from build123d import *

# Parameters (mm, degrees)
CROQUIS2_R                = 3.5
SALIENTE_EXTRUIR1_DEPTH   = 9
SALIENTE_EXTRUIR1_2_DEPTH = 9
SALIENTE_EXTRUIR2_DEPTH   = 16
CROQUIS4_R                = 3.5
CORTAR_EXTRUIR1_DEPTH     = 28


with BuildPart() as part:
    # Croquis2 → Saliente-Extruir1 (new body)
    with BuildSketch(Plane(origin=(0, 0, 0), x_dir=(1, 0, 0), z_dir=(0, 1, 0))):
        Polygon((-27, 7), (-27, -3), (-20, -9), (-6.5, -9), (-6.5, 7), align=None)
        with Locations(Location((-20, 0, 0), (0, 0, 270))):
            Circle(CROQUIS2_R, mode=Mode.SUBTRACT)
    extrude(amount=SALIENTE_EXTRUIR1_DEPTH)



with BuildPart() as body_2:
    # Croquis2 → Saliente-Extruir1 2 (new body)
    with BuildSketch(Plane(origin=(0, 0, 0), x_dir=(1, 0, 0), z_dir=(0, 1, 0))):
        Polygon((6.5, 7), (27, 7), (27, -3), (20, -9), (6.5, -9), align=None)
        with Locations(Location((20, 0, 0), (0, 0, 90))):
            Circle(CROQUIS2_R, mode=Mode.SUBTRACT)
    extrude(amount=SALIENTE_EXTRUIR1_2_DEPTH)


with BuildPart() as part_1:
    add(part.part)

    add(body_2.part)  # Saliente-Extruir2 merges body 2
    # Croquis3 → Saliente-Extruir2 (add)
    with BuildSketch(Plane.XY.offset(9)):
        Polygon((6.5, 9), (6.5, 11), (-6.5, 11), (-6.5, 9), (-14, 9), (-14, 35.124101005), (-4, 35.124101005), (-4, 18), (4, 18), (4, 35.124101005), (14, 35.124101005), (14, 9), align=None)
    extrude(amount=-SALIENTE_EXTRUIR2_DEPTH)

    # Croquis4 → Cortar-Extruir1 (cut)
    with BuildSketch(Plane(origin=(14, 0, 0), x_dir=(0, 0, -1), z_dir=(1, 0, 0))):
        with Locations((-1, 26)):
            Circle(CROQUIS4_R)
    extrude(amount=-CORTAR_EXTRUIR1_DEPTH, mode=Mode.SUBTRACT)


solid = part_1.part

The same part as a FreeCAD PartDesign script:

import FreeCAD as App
import Part
import Sketcher

V = App.Vector

doc = App.newDocument("Part")
body = doc.addObject("PartDesign::Body", "Body")

sketch1 = doc.addObject("Sketcher::SketchObject", "Sketch")
body.addObject(sketch1)
sketch1.AttachmentSupport = (doc.XZ_Plane, [""])
sketch1.MapMode = "FlatFace"
sketch1.addGeometry(Part.LineSegment(V(-27, -7, 0), V(-27, 3, 0)), False)
sketch1.addGeometry(Part.LineSegment(V(-27, 3, 0), V(-20, 9, 0)), False)
sketch1.addGeometry(Part.LineSegment(V(-20, 9, 0), V(-6.5, 9, 0)), False)
sketch1.addGeometry(Part.LineSegment(V(-6.5, 9, 0), V(-6.5, -7, 0)), False)
sketch1.addGeometry(Part.LineSegment(V(-6.5, -7, 0), V(-27, -7, 0)), False)
sketch1.addGeometry(Part.Circle(V(-20, 0, 0), V(0, 0, 1), 3.5), False)
sketch1.addConstraint(Sketcher.Constraint("Coincident", 0, 2, 1, 1))
sketch1.addConstraint(Sketcher.Constraint("Coincident", 1, 2, 2, 1))
sketch1.addConstraint(Sketcher.Constraint("Coincident", 2, 2, 3, 1))
sketch1.addConstraint(Sketcher.Constraint("Coincident", 3, 2, 4, 1))
sketch1.addConstraint(Sketcher.Constraint("Coincident", 4, 2, 0, 1))
sketch1.addConstraint(Sketcher.Constraint("Vertical", 0))
sketch1.addConstraint(Sketcher.Constraint("Horizontal", 2))
sketch1.addConstraint(Sketcher.Constraint("Vertical", 3))
sketch1.addConstraint(Sketcher.Constraint("Horizontal", 4))
sketch1.addConstraint(Sketcher.Constraint("PointOnObject", 5, 3, -1))
sketch1.addConstraint(Sketcher.Constraint("Vertical", 5, 3, 1, 2))
sketch1.addConstraint(Sketcher.Constraint("Diameter", 5, 7.0))
sketch1.addConstraint(Sketcher.Constraint("DistanceY", 0, 1, 0, 2, 10.0))
sketch1.addConstraint(Sketcher.Constraint("DistanceY", 3, 2, 3, 1, 16.0))
sketch1.addConstraint(Sketcher.Constraint("DistanceX", 2, 1, 2, 2, 13.5))
sketch1.addConstraint(Sketcher.Constraint("DistanceX", 4, 2, 4, 1, 20.5))
sketch1.addConstraint(Sketcher.Constraint("DistanceX", 5, 3, -1, 1, 20.0))
sketch1.addConstraint(Sketcher.Constraint("DistanceY", -1, 1, 0, 2, 3.0))
pad1 = doc.addObject("PartDesign::Pad", "Pad")
body.addObject(pad1)
pad1.Profile = sketch1
pad1.Length = 9
pad1.Reversed = True
body2 = doc.addObject("PartDesign::Body", "Body001")

sketch2 = doc.addObject("Sketcher::SketchObject", "Sketch001")
body2.addObject(sketch2)
sketch2.AttachmentSupport = (doc.getObject("XZ_Plane001"), [""])
sketch2.MapMode = "FlatFace"
sketch2.addGeometry(Part.LineSegment(V(27, -7, 0), V(6.5, -7, 0)), False)
sketch2.addGeometry(Part.LineSegment(V(6.5, -7, 0), V(6.5, 9, 0)), False)
sketch2.addGeometry(Part.LineSegment(V(6.5, 9, 0), V(20, 9, 0)), False)
sketch2.addGeometry(Part.LineSegment(V(20, 9, 0), V(27, 3, 0)), False)
sketch2.addGeometry(Part.LineSegment(V(27, 3, 0), V(27, -7, 0)), False)
sketch2.addGeometry(Part.Circle(V(20, 0, 0), V(0, 0, 1), 3.5), False)
sketch2.addConstraint(Sketcher.Constraint("Coincident", 0, 2, 1, 1))
sketch2.addConstraint(Sketcher.Constraint("Coincident", 1, 2, 2, 1))
sketch2.addConstraint(Sketcher.Constraint("Coincident", 2, 2, 3, 1))
sketch2.addConstraint(Sketcher.Constraint("Coincident", 3, 2, 4, 1))
sketch2.addConstraint(Sketcher.Constraint("Coincident", 4, 2, 0, 1))
sketch2.addConstraint(Sketcher.Constraint("Horizontal", 0))
sketch2.addConstraint(Sketcher.Constraint("Vertical", 1))
sketch2.addConstraint(Sketcher.Constraint("Horizontal", 2))
sketch2.addConstraint(Sketcher.Constraint("Vertical", 4))
sketch2.addConstraint(Sketcher.Constraint("PointOnObject", 5, 3, -1))
sketch2.addConstraint(Sketcher.Constraint("Vertical", 5, 3, 2, 2))
sketch2.addConstraint(Sketcher.Constraint("Diameter", 5, 7.0))
sketch2.addConstraint(Sketcher.Constraint("DistanceY", 1, 1, 1, 2, 16.0))
sketch2.addConstraint(Sketcher.Constraint("DistanceY", 4, 2, 4, 1, 10.0))
sketch2.addConstraint(Sketcher.Constraint("DistanceX", 0, 2, 0, 1, 20.5))
sketch2.addConstraint(Sketcher.Constraint("DistanceX", 2, 1, 2, 2, 13.5))
sketch2.addConstraint(Sketcher.Constraint("DistanceX", -1, 1, 5, 3, 20.0))
sketch2.addConstraint(Sketcher.Constraint("DistanceY", 0, 2, -1, 1, 7.0))
pad2 = doc.addObject("PartDesign::Pad", "Pad001")
body2.addObject(pad2)
pad2.Profile = sketch2
pad2.Length = 9
pad2.Reversed = True
body.AllowCompound = True
doc.recompute()

boolean = doc.addObject("PartDesign::Boolean", "Boolean")
body.addObject(boolean)
boolean.Type = "Fuse"
boolean.addObjects([body2])

sketch3 = doc.addObject("Sketcher::SketchObject", "Sketch002")
body.addObject(sketch3)
sketch3.AttachmentSupport = (doc.XY_Plane, [""])
sketch3.MapMode = "FlatFace"
sketch3.AttachmentOffset = App.Placement(V(0, 0, 9), App.Rotation())
sketch3.addGeometry(Part.LineSegment(V(6.5, 11, 0), V(6.5, 9, 0)), False)
sketch3.addGeometry(Part.LineSegment(V(6.5, 9, 0), V(14, 9, 0)), False)
sketch3.addGeometry(Part.LineSegment(V(14, 9, 0), V(14, 35.1, 0)), False)
sketch3.addGeometry(Part.LineSegment(V(14, 35.1, 0), V(4, 35.1, 0)), False)
sketch3.addGeometry(Part.LineSegment(V(4, 35.1, 0), V(4, 18, 0)), False)
sketch3.addGeometry(Part.LineSegment(V(4, 18, 0), V(-4, 18, 0)), False)
sketch3.addGeometry(Part.LineSegment(V(-4, 18, 0), V(-4, 35.1, 0)), False)
sketch3.addGeometry(Part.LineSegment(V(-4, 35.1, 0), V(-14, 35.1, 0)), False)
sketch3.addGeometry(Part.LineSegment(V(-14, 35.1, 0), V(-14, 9, 0)), False)
sketch3.addGeometry(Part.LineSegment(V(-14, 9, 0), V(-6.5, 9, 0)), False)
sketch3.addGeometry(Part.LineSegment(V(-6.5, 9, 0), V(-6.5, 11, 0)), False)
sketch3.addGeometry(Part.LineSegment(V(-6.5, 11, 0), V(6.5, 11, 0)), False)
sketch3.addConstraint(Sketcher.Constraint("Coincident", 0, 2, 1, 1))
sketch3.addConstraint(Sketcher.Constraint("Coincident", 1, 2, 2, 1))
sketch3.addConstraint(Sketcher.Constraint("Coincident", 2, 2, 3, 1))
sketch3.addConstraint(Sketcher.Constraint("Coincident", 3, 2, 4, 1))
sketch3.addConstraint(Sketcher.Constraint("Coincident", 4, 2, 5, 1))
sketch3.addConstraint(Sketcher.Constraint("Coincident", 5, 2, 6, 1))
sketch3.addConstraint(Sketcher.Constraint("Coincident", 6, 2, 7, 1))
sketch3.addConstraint(Sketcher.Constraint("Coincident", 7, 2, 8, 1))
sketch3.addConstraint(Sketcher.Constraint("Coincident", 8, 2, 9, 1))
sketch3.addConstraint(Sketcher.Constraint("Coincident", 9, 2, 10, 1))
sketch3.addConstraint(Sketcher.Constraint("Coincident", 10, 2, 11, 1))
sketch3.addConstraint(Sketcher.Constraint("Coincident", 11, 2, 0, 1))
sketch3.addConstraint(Sketcher.Constraint("Vertical", 0))
sketch3.addConstraint(Sketcher.Constraint("Horizontal", 1))
sketch3.addConstraint(Sketcher.Constraint("Vertical", 2))
sketch3.addConstraint(Sketcher.Constraint("Horizontal", 3))
sketch3.addConstraint(Sketcher.Constraint("Vertical", 4))
sketch3.addConstraint(Sketcher.Constraint("Horizontal", 5))
sketch3.addConstraint(Sketcher.Constraint("Vertical", 6))
sketch3.addConstraint(Sketcher.Constraint("Horizontal", 7))
sketch3.addConstraint(Sketcher.Constraint("Vertical", 8))
sketch3.addConstraint(Sketcher.Constraint("Horizontal", 9))
sketch3.addConstraint(Sketcher.Constraint("Vertical", 10))
sketch3.addConstraint(Sketcher.Constraint("Horizontal", 11))
sketch3.addConstraint(Sketcher.Constraint("Symmetric", 3, 2, 6, 2, -2))
sketch3.addConstraint(Sketcher.Constraint("Symmetric", 1, 2, 8, 2, -2))
sketch3.addConstraint(Sketcher.Constraint("Equal", 1, 9))
sketch3.addConstraint(Sketcher.Constraint("DistanceX", 3, 2, 3, 1, 10.0))
sketch3.addConstraint(Sketcher.Constraint("DistanceX", 5, 2, 5, 1, 8.0))
sketch3.addConstraint(Sketcher.Constraint("DistanceX", 11, 1, 11, 2, 13.0))
sketch3.addConstraint(Sketcher.Constraint("DistanceY", 0, 2, 0, 1, 2.0))
sketch3.addConstraint(Sketcher.Constraint("DistanceY", -1, 1, 0, 2, 9.0))
sketch3.addConstraint(Sketcher.Constraint("DistanceY", -1, 1, 4, 2, 18.0))
sketch3.addConstraint(Sketcher.Constraint("DistanceY", 2, 1, 2, 2, 26.124101))
pad3 = doc.addObject("PartDesign::Pad", "Pad002")
body.addObject(pad3)
pad3.Profile = sketch3
pad3.Length = 16
pad3.Reversed = True

sketch4 = doc.addObject("Sketcher::SketchObject", "Sketch003")
body.addObject(sketch4)
sketch4.AttachmentSupport = (doc.YZ_Plane, [""])
sketch4.MapMode = "FlatFace"
sketch4.AttachmentOffset = App.Placement(V(0, 0, 14), App.Rotation())
sketch4.addGeometry(Part.Circle(V(26, 1, 0), V(0, 0, 1), 3.5), False)
sketch4.addConstraint(Sketcher.Constraint("Diameter", 0, 7.0))
sketch4.addConstraint(Sketcher.Constraint("DistanceX", -1, 1, 0, 3, 26.0))
sketch4.addConstraint(Sketcher.Constraint("DistanceY", -1, 1, 0, 3, 1.0))
pocket1 = doc.addObject("PartDesign::Pocket", "Pocket")
body.addObject(pocket1)
pocket1.Profile = sketch4
pocket1.Length = 28

doc.recompute()
